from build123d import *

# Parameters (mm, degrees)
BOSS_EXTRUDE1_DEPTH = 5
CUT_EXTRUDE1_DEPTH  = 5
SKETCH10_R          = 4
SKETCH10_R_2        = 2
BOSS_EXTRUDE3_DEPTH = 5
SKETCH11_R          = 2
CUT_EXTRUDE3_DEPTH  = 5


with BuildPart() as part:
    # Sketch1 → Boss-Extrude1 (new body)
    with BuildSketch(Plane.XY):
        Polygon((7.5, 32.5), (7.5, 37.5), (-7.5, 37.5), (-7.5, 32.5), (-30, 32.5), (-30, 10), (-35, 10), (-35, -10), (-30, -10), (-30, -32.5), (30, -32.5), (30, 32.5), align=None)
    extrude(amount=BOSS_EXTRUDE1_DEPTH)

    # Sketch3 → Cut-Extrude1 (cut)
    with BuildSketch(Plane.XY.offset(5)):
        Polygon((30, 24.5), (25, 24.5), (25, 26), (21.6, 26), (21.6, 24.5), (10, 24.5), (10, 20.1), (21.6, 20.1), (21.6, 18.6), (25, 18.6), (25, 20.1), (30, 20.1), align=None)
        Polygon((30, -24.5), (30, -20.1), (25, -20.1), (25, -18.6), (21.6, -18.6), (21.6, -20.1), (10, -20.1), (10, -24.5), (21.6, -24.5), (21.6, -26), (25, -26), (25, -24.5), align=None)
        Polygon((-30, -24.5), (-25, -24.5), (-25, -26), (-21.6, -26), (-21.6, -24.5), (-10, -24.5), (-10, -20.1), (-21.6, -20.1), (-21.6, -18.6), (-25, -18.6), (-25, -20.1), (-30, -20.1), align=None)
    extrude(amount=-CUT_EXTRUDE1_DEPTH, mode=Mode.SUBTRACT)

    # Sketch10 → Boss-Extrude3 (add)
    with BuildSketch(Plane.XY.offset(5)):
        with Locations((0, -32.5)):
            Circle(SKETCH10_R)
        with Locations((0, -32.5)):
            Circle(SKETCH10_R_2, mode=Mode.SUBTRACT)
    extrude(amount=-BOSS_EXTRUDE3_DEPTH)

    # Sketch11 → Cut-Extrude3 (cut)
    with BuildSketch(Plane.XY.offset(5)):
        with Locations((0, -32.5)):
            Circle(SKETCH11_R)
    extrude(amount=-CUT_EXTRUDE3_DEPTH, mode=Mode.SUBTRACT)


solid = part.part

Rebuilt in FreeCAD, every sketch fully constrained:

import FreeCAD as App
import Part
import Sketcher
Q = App.Units.Quantity


def add_polygon(sketch, points):
    """Adds a closed chain of lines whose ends are joined by coincident constraints."""
    first, n = sketch.GeometryCount, len(points)
    for a, b in zip(points, points[1:] + points[:1]):
        sketch.addGeometry(Part.LineSegment(App.Vector(*a, 0), App.Vector(*b, 0)), False)
    for i in range(n):
        sketch.addConstraint(Sketcher.Constraint("Coincident", first + i, 2, first + (i + 1) % n, 1))

doc = App.newDocument("Part")
body = doc.addObject("PartDesign::Body", "Body")

# Sketch on XY plane
sketch1 = doc.addObject("Sketcher::SketchObject", "Sketch")
body.addObject(sketch1)
sketch1.AttachmentSupport = (doc.XY_Plane, [""])
sketch1.MapMode = "FlatFace"
add_polygon(sketch1, [(7.5, 32.5), (7.5, 37.5), (-7.5, 37.5), (-7.5, 32.5), (-30, 32.5), (-30, 10), (-35, 10), (-35, -10), (-30, -10), (-30, -32.5), (30, -32.5), (30, 32.5)])  # lines 0-11
sketch1.addConstraint([
    Sketcher.Constraint("Vertical", 0),
    Sketcher.Constraint("Horizontal", 1),
    Sketcher.Constraint("Vertical", 2),
    Sketcher.Constraint("Horizontal", 3),
    Sketcher.Constraint("Vertical", 4),
    Sketcher.Constraint("Horizontal", 5),
    Sketcher.Constraint("Vertical", 6),
    Sketcher.Constraint("Horizontal", 7),
    Sketcher.Constraint("Vertical", 8),
    Sketcher.Constraint("Horizontal", 9),
    Sketcher.Constraint("Vertical", 10),
    Sketcher.Constraint("Horizontal", 11),
    Sketcher.Constraint("Symmetric", 3, 2, 9, 2, -1, 1),
    Sketcher.Constraint("Symmetric", 8, 2, 10, 2, -1, 1),
    Sketcher.Constraint("Equal", 3, 11),
    Sketcher.Constraint("Equal", 7, 0),
    Sketcher.Constraint("Equal", 11, 4),
    Sketcher.Constraint("Equal", 4, 8),
    Sketcher.Constraint("DistanceX", 1, 2, 1, 1, Q("15 mm")),
    Sketcher.Constraint("DistanceX", 5, 2, 5, 1, Q("5 mm")),
    Sketcher.Constraint("DistanceX", 9, 1, 9, 2, Q("60 mm")),
    Sketcher.Constraint("DistanceY", 6, 2, 6, 1, Q("20 mm")),
])
pad1 = doc.addObject("PartDesign::Pad", "Pad")
body.addObject(pad1)
pad1.Profile = sketch1
pad1.Length = 5

# Sketch on XY plane
sketch2 = doc.addObject("Sketcher::SketchObject", "Sketch001")
body.addObject(sketch2)
sketch2.AttachmentSupport = (doc.XY_Plane, [""])
sketch2.MapMode = "FlatFace"
sketch2.AttachmentOffset = App.Placement(App.Vector(0, 0, 5), App.Rotation())
add_polygon(sketch2, [(30, 24.5), (25, 24.5), (25, 26), (21.6, 26), (21.6, 24.5), (10, 24.5), (10, 20.1), (21.6, 20.1), (21.6, 18.6), (25, 18.6), (25, 20.1), (30, 20.1)])  # lines 0-11
add_polygon(sketch2, [(30, -24.5), (30, -20.1), (25, -20.1), (25, -18.6), (21.6, -18.6), (21.6, -20.1), (10, -20.1), (10, -24.5), (21.6, -24.5), (21.6, -26), (25, -26), (25, -24.5)])  # lines 12-23
add_polygon(sketch2, [(-30, -24.5), (-25, -24.5), (-25, -26), (-21.6, -26), (-21.6, -24.5), (-10, -24.5), (-10, -20.1), (-21.6, -20.1), (-21.6, -18.6), (-25, -18.6), (-25, -20.1), (-30, -20.1)])  # lines 24-35
sketch2.addConstraint([
    Sketcher.Constraint("Horizontal", 0),
    Sketcher.Constraint("Vertical", 1),
    Sketcher.Constraint("Horizontal", 2),
    Sketcher.Constraint("Vertical", 3),
    Sketcher.Constraint("Horizontal", 4),
    Sketcher.Constraint("Vertical", 5),
    Sketcher.Constraint("Horizontal", 6),
    Sketcher.Constraint("Vertical", 7),
    Sketcher.Constraint("Horizontal", 8),
    Sketcher.Constraint("Vertical", 9),
    Sketcher.Constraint("Horizontal", 10),
    Sketcher.Constraint("Vertical", 11),
    Sketcher.Constraint("Vertical", 12),
    Sketcher.Constraint("Horizontal", 13),
    Sketcher.Constraint("Vertical", 14),
    Sketcher.Constraint("Horizontal", 15),
    Sketcher.Constraint("Vertical", 16),
    Sketcher.Constraint("Horizontal", 17),
    Sketcher.Constraint("Vertical", 18),
    Sketcher.Constraint("Horizontal", 19),
    Sketcher.Constraint("Vertical", 20),
    Sketcher.Constraint("Horizontal", 21),
    Sketcher.Constraint("Vertical", 22),
    Sketcher.Constraint("Horizontal", 23),
    Sketcher.Constraint("Horizontal", 24),
    Sketcher.Constraint("Vertical", 25),
    Sketcher.Constraint("Horizontal", 26),
    Sketcher.Constraint("Vertical", 27),
    Sketcher.Constraint("Horizontal", 28),
    Sketcher.Constraint("Vertical", 29),
    Sketcher.Constraint("Horizontal", 30),
    Sketcher.Constraint("Vertical", 31),
    Sketcher.Constraint("Horizontal", 32),
    Sketcher.Constraint("Vertical", 33),
    Sketcher.Constraint("Horizontal", 34),
    Sketcher.Constraint("Vertical", 35),
    Sketcher.Constraint("Symmetric", 0, 2, 24, 2, -1, 1),
    Sketcher.Constraint("Symmetric", 2, 2, 26, 2, -1, 1),
    Sketcher.Constraint("Symmetric", 4, 2, 28, 2, -1, 1),
    Sketcher.Constraint("Symmetric", 6, 2, 30, 2, -1, 1),
    Sketcher.Constraint("Symmetric", 8, 2, 32, 2, -1, 1),
    Sketcher.Constraint("Symmetric", 10, 2, 34, 2, -1, 1),
    Sketcher.Constraint("Symmetric", 22, 2, 24, 2, -2),
    Sketcher.Constraint("Symmetric", 20, 2, 26, 2, -2),
    Sketcher.Constraint("Symmetric", 18, 2, 28, 2, -2),
    Sketcher.Constraint("Symmetric", 16, 2, 30, 2, -2),
    Sketcher.Constraint("Symmetric", 14, 2, 32, 2, -2),
    Sketcher.Constraint("Symmetric", 12, 2, 34, 2, -2),
    Sketcher.Constraint("Horizontal", 0, 2, 3, 2),
    Sketcher.Constraint("Horizontal", 6, 2, 9, 2),
    Sketcher.Constraint("Vertical", 3, 2, 6, 2),
    Sketcher.Constraint("Vertical", 1, 2, 8, 2),
    Sketcher.Constraint("Equal", 3, 7),
    Sketcher.Constraint("DistanceX", 0, 2, 0, 1, Q("5 mm")),
    Sketcher.Constraint("DistanceX", 2, 2, 2, 1, Q("3.4 mm")),
    Sketcher.Constraint("DistanceX", 4, 2, 4, 1, Q("11.6 mm")),
    Sketcher.Constraint("DistanceY", 1, 1, 1, 2, Q("1.5 mm")),
    Sketcher.Constraint("DistanceY", 5, 2, 5, 1, Q("4.4 mm")),
    Sketcher.Constraint("DistanceX", -1, 1, 0, 2, Q("25 mm")),
    Sketcher.Constraint("DistanceY", -1, 1, 1, 2, Q("26 mm")),
])
pocket1 = doc.addObject("PartDesign::Pocket", "Pocket")
body.addObject(pocket1)
pocket1.Profile = sketch2
pocket1.Length = 5

# Sketch on XY plane
sketch3 = doc.addObject("Sketcher::SketchObject", "Sketch002")
body.addObject(sketch3)
sketch3.AttachmentSupport = (doc.XY_Plane, [""])
sketch3.MapMode = "FlatFace"
sketch3.AttachmentOffset = App.Placement(App.Vector(0, 0, 5), App.Rotation())
sketch3.addGeometry([
    Part.Circle(App.Vector(0, -32.5, 0), App.Vector(0, 0, 1), 4),
    Part.Circle(App.Vector(0, -32.5, 0), App.Vector(0, 0, 1), 2),
], False)
sketch3.addConstraint([
    Sketcher.Constraint("Coincident", 1, 3, 0, 3),
    Sketcher.Constraint("PointOnObject", 0, 3, -2),
    Sketcher.Constraint("Diameter", 0, Q("8 mm")),
    Sketcher.Constraint("Diameter", 1, Q("4 mm")),
    Sketcher.Constraint("DistanceY", 0, 3, -1, 1, Q("32.5 mm")),
])
pad2 = doc.addObject("PartDesign::Pad", "Pad001")
body.addObject(pad2)
pad2.Profile = sketch3
pad2.Length = 5
pad2.Reversed = True

# Sketch on XY plane
sketch4 = doc.addObject("Sketcher::SketchObject", "Sketch003")
body.addObject(sketch4)
sketch4.AttachmentSupport = (doc.XY_Plane, [""])
sketch4.MapMode = "FlatFace"
sketch4.AttachmentOffset = App.Placement(App.Vector(0, 0, 5), App.Rotation())
sketch4.addGeometry(Part.Circle(App.Vector(0, -32.5, 0), App.Vector(0, 0, 1), 2), False)
sketch4.addConstraint([
    Sketcher.Constraint("PointOnObject", 0, 3, -2),
    Sketcher.Constraint("Diameter", 0, Q("4 mm")),
    Sketcher.Constraint("DistanceY", 0, 3, -1, 1, Q("32.5 mm")),
])
pocket2 = doc.addObject("PartDesign::Pocket", "Pocket001")
body.addObject(pocket2)
pocket2.Profile = sketch4
pocket2.Length = 5

doc.recompute()
